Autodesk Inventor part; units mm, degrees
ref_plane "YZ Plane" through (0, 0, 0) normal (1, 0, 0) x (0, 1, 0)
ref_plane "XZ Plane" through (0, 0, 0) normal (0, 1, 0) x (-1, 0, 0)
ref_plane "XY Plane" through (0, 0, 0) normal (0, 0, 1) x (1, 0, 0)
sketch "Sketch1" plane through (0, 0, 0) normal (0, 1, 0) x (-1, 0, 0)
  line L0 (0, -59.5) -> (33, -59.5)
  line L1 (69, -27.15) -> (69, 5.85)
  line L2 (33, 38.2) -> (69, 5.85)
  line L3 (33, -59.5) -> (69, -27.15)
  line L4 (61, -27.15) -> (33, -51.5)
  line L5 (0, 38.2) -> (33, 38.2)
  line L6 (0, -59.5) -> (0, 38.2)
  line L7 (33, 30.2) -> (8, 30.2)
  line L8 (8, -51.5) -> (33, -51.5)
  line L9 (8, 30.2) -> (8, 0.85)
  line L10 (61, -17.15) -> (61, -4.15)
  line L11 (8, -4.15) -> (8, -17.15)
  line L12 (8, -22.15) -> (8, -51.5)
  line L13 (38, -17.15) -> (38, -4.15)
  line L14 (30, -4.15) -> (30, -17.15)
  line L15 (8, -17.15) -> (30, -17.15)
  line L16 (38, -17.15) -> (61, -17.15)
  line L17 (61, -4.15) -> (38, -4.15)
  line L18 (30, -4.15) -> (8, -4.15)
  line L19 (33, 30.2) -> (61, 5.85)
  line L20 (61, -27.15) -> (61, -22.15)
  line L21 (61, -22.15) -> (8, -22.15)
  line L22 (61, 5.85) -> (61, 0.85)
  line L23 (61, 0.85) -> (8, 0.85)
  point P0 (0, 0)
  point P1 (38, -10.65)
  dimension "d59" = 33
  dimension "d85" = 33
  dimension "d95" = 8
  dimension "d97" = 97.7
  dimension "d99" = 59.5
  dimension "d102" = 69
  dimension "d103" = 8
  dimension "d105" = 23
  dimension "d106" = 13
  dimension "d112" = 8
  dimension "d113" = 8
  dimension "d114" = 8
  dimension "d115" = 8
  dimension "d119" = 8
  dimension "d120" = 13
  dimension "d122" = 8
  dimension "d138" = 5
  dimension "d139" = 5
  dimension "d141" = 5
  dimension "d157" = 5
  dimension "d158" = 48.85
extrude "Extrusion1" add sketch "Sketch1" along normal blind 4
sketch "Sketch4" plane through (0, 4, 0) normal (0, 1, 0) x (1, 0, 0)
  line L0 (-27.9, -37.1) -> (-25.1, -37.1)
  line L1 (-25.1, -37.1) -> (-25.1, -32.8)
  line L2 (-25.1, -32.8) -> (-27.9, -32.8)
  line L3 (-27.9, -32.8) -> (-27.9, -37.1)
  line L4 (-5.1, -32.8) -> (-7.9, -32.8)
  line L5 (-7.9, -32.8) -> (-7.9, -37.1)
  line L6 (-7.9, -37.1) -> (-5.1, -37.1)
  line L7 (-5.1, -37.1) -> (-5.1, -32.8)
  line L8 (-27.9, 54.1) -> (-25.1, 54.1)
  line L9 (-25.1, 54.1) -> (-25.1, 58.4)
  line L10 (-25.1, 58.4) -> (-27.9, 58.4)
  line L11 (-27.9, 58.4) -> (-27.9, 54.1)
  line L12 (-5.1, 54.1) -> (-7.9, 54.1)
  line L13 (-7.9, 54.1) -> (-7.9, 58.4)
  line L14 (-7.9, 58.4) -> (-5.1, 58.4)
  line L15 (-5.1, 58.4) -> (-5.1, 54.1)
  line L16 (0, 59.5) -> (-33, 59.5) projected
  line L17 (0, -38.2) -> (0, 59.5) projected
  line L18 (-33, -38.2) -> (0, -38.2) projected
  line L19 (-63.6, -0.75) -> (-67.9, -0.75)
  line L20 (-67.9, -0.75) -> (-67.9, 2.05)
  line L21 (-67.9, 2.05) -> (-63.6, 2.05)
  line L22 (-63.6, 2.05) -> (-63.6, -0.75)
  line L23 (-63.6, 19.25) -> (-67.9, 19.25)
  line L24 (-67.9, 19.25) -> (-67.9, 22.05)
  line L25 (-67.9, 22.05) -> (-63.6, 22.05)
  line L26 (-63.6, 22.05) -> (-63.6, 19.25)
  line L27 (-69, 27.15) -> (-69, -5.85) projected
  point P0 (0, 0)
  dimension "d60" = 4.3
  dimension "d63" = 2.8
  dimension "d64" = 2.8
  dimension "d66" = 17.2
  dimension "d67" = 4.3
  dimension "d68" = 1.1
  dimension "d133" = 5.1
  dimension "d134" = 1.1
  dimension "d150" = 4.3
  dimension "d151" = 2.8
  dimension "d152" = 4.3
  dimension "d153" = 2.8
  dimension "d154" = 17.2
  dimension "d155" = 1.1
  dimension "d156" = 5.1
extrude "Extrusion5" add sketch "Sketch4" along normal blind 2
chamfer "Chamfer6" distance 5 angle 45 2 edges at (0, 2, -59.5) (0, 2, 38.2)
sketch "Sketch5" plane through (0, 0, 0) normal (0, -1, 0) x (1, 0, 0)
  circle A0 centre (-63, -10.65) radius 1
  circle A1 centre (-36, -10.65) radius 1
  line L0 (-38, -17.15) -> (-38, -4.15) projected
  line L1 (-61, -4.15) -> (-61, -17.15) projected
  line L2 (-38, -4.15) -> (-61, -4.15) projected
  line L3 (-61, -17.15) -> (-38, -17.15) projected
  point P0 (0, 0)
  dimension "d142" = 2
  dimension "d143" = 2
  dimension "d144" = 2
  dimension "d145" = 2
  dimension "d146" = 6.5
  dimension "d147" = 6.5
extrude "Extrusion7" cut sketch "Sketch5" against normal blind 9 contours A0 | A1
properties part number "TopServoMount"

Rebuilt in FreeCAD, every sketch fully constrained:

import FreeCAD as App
import Part
import Sketcher
from FreeCAD import Vector
Q = App.Units.Quantity


def edges_at(feature, points):
    """Names of the edges that pass closest to the given points."""
    edges = feature.Shape.Edges
    near = lambda p: min(range(len(edges)), key=lambda i: edges[i].distToShape(Part.Vertex(*p))[0])
    return sorted({f"Edge{near(p) + 1}" for p in points})

doc = App.newDocument("Part")
body = doc.addObject("PartDesign::Body", "Body")

sketch1 = body.newObject("Sketcher::SketchObject", "Sketch")
sketch1.AttachmentSupport = (doc.getObject("XZ_Plane"), [""])
sketch1.MapMode = "FlatFace"
sketch1.addGeometry(Part.LineSegment(Vector(0, 38, 0), Vector(0, -60, 0)), False)
sketch1.addGeometry(Part.LineSegment(Vector(0, -60, 0), Vector(-33, -60, 0)), False)
sketch1.addGeometry(Part.LineSegment(Vector(-33, -60, 0), Vector(-69, -27, 0)), False)
sketch1.addGeometry(Part.LineSegment(Vector(-69, -27, 0), Vector(-69, 6, 0)), False)
sketch1.addGeometry(Part.LineSegment(Vector(-69, 6, 0), Vector(-33, 38, 0)), False)
sketch1.addGeometry(Part.LineSegment(Vector(-33, 38, 0), Vector(0, 38, 0)), False)
sketch1.addGeometry(Part.LineSegment(Vector(-8, -17, 0), Vector(-8, -4, 0)), False)
sketch1.addGeometry(Part.LineSegment(Vector(-8, -4, 0), Vector(-30, -4, 0)), False)
sketch1.addGeometry(Part.LineSegment(Vector(-30, -4, 0), Vector(-30, -17, 0)), False)
sketch1.addGeometry(Part.LineSegment(Vector(-30, -17, 0), Vector(-8, -17, 0)), False)
sketch1.addGeometry(Part.LineSegment(Vector(-61, -22, 0), Vector(-61, -27, 0)), False)
sketch1.addGeometry(Part.LineSegment(Vector(-61, -27, 0), Vector(-33, -52, 0)), False)
sketch1.addGeometry(Part.LineSegment(Vector(-33, -52, 0), Vector(-8, -52, 0)), False)
sketch1.addGeometry(Part.LineSegment(Vector(-8, -52, 0), Vector(-8, -22, 0)), False)
sketch1.addGeometry(Part.LineSegment(Vector(-8, -22, 0), Vector(-61, -22, 0)), False)
sketch1.addGeometry(Part.LineSegment(Vector(-61, -4, 0), Vector(-61, -17, 0)), False)
sketch1.addGeometry(Part.LineSegment(Vector(-61, -17, 0), Vector(-38, -17, 0)), False)
sketch1.addGeometry(Part.LineSegment(Vector(-38, -17, 0), Vector(-38, -4, 0)), False)
sketch1.addGeometry(Part.LineSegment(Vector(-38, -4, 0), Vector(-61, -4, 0)), False)
sketch1.addGeometry(Part.LineSegment(Vector(-8, 30, 0), Vector(-33, 30, 0)), False)
sketch1.addGeometry(Part.LineSegment(Vector(-33, 30, 0), Vector(-61, 6, 0)), False)
sketch1.addGeometry(Part.LineSegment(Vector(-61, 6, 0), Vector(-61, 1, 0)), False)
sketch1.addGeometry(Part.LineSegment(Vector(-61, 1, 0), Vector(-8, 1, 0)), False)
sketch1.addGeometry(Part.LineSegment(Vector(-8, 1, 0), Vector(-8, 30, 0)), False)
sketch1.addConstraint(Sketcher.Constraint("Coincident", 0, 2, 1, 1))
sketch1.addConstraint(Sketcher.Constraint("Coincident", 1, 2, 2, 1))
sketch1.addConstraint(Sketcher.Constraint("Coincident", 2, 2, 3, 1))
sketch1.addConstraint(Sketcher.Constraint("Coincident", 3, 2, 4, 1))
sketch1.addConstraint(Sketcher.Constraint("Coincident", 4, 2, 5, 1))
sketch1.addConstraint(Sketcher.Constraint("Coincident", 5, 2, 0, 1))
sketch1.addConstraint(Sketcher.Constraint("Coincident", 6, 2, 7, 1))
sketch1.addConstraint(Sketcher.Constraint("Coincident", 7, 2, 8, 1))
sketch1.addConstraint(Sketcher.Constraint("Coincident", 8, 2, 9, 1))
sketch1.addConstraint(Sketcher.Constraint("Coincident", 9, 2, 6, 1))
sketch1.addConstraint(Sketcher.Constraint("Coincident", 10, 2, 11, 1))
sketch1.addConstraint(Sketcher.Constraint("Coincident", 11, 2, 12, 1))
sketch1.addConstraint(Sketcher.Constraint("Coincident", 12, 2, 13, 1))
sketch1.addConstraint(Sketcher.Constraint("Coincident", 13, 2, 14, 1))
sketch1.addConstraint(Sketcher.Constraint("Coincident", 14, 2, 10, 1))
sketch1.addConstraint(Sketcher.Constraint("Coincident", 15, 2, 16, 1))
sketch1.addConstraint(Sketcher.Constraint("Coincident", 16, 2, 17, 1))
sketch1.addConstraint(Sketcher.Constraint("Coincident", 17, 2, 18, 1))
sketch1.addConstraint(Sketcher.Constraint("Coincident", 18, 2, 15, 1))
sketch1.addConstraint(Sketcher.Constraint("Coincident", 19, 2, 20, 1))
sketch1.addConstraint(Sketcher.Constraint("Coincident", 20, 2, 21, 1))
sketch1.addConstraint(Sketcher.Constraint("Coincident", 21, 2, 22, 1))
sketch1.addConstraint(Sketcher.Constraint("Coincident", 22, 2, 23, 1))
sketch1.addConstraint(Sketcher.Constraint("Coincident", 23, 2, 19, 1))
sketch1.addConstraint(Sketcher.Constraint("Vertical", 0))
sketch1.addConstraint(Sketcher.Constraint("Horizontal", 1))
sketch1.addConstraint(Sketcher.Constraint("Vertical", 3))
sketch1.addConstraint(Sketcher.Constraint("Horizontal", 5))
sketch1.addConstraint(Sketcher.Constraint("Vertical", 6))
sketch1.addConstraint(Sketcher.Constraint("Horizontal", 7))
sketch1.addConstraint(Sketcher.Constraint("Vertical", 8))
sketch1.addConstraint(Sketcher.Constraint("Horizontal", 9))
sketch1.addConstraint(Sketcher.Constraint("Vertical", 10))
sketch1.addConstraint(Sketcher.Constraint("Horizontal", 12))
sketch1.addConstraint(Sketcher.Constraint("Vertical", 13))
sketch1.addConstraint(Sketcher.Constraint("Horizontal", 14))
sketch1.addConstraint(Sketcher.Constraint("Vertical", 15))
sketch1.addConstraint(Sketcher.Constraint("Horizontal", 16))
sketch1.addConstraint(Sketcher.Constraint("Vertical", 17))
sketch1.addConstraint(Sketcher.Constraint("Horizontal", 18))
sketch1.addConstraint(Sketcher.Constraint("Horizontal", 19))
sketch1.addConstraint(Sketcher.Constraint("Vertical", 21))
sketch1.addConstraint(Sketcher.Constraint("Horizontal", 22))
sketch1.addConstraint(Sketcher.Constraint("Vertical", 23))
sketch1.addConstraint(Sketcher.Constraint("PointOnObject", 0, 2, -2))
sketch1.addConstraint(Sketcher.Constraint("Horizontal", 2, 2, 10, 2))
sketch1.addConstraint(Sketcher.Constraint("Horizontal", 9, 2, 15, 2))
sketch1.addConstraint(Sketcher.Constraint("Horizontal", 7, 2, 17, 2))
sketch1.addConstraint(Sketcher.Constraint("Horizontal", 3, 2, 20, 2))
sketch1.addConstraint(Sketcher.Constraint("Vertical", 1, 2, 4, 2))
sketch1.addConstraint(Sketcher.Constraint("Vertical", 4, 2, 11, 2))
sketch1.addConstraint(Sketcher.Constraint("Vertical", 9, 2, 12, 2))
sketch1.addConstraint(Sketcher.Constraint("Vertical", 14, 2, 15, 2))
sketch1.addConstraint(Sketcher.Constraint("Vertical", 11, 2, 19, 2))
sketch1.addConstraint(Sketcher.Constraint("Vertical", 18, 2, 20, 2))
sketch1.addConstraint(Sketcher.Constraint("Vertical", 13, 2, 22, 2))
sketch1.addConstraint(Sketcher.Constraint("Equal", 5, 3))
sketch1.addConstraint(Sketcher.Constraint("Equal", 10, 21))
sketch1.addConstraint(Sketcher.Constraint("Equal", 13, 23))
sketch1.addConstraint(Sketcher.Constraint("Equal", 2, 4))
sketch1.addConstraint(Sketcher.Constraint("DistanceX", 1, 2, 1, 1, Q("33 mm")))
sketch1.addConstraint(Sketcher.Constraint("DistanceX", 16, 1, 16, 2, Q("23 mm")))
sketch1.addConstraint(Sketcher.Constraint("DistanceY", 6, 1, 6, 2, Q("13 mm")))
sketch1.addConstraint(Sketcher.Constraint("DistanceY", 10, 2, 10, 1, Q("5 mm")))
sketch1.addConstraint(Sketcher.Constraint("DistanceY", 0, 2, 0, 1, Q("97.7 mm")))
sketch1.addConstraint(Sketcher.Constraint("DistanceX", 2, 2, -1, 1, Q("69 mm")))
sketch1.addConstraint(Sketcher.Constraint("DistanceX", 6, 2, -1, 1, Q("8 mm")))
sketch1.addConstraint(Sketcher.Constraint("DistanceY", 2, 2, 7, 2, Q("23 mm")))
sketch1.addConstraint(Sketcher.Constraint("DistanceX", 2, 2, 10, 2, Q("8 mm")))
sketch1.addConstraint(Sketcher.Constraint("DistanceY", 1, 2, 11, 2, Q("8 mm")))
sketch1.addConstraint(Sketcher.Constraint("DistanceX", 16, 2, 8, 2, Q("8 mm")))
sketch1.addConstraint(Sketcher.Constraint("DistanceY", 0, 2, -1, 1, Q("59.5 mm")))
pad1 = body.newObject("PartDesign::Pad", "Pad")
pad1.Profile = sketch1
pad1.Length = 4
pad1.Reversed = True

sketch2 = body.newObject("Sketcher::SketchObject", "Sketch001")
sketch2.AttachmentSupport = (doc.getObject("XZ_Plane"), [""])
sketch2.MapMode = "FlatFace"
sketch2.AttachmentOffset = App.Placement(Vector(0, 0, -4), App.Rotation())
sketch2.addGeometry(Part.LineSegment(Vector(-27.9, 32.8, 0), Vector(-27.9, 37.1, 0)), False)
sketch2.addGeometry(Part.LineSegment(Vector(-27.9, 37.1, 0), Vector(-25.1, 37.1, 0)), False)
sketch2.addGeometry(Part.LineSegment(Vector(-25.1, 37.1, 0), Vector(-25.1, 32.8, 0)), False)
sketch2.addGeometry(Part.LineSegment(Vector(-25.1, 32.8, 0), Vector(-27.9, 32.8, 0)), False)
sketch2.addGeometry(Part.LineSegment(Vector(-5.1, 37.1, 0), Vector(-5.1, 32.8, 0)), False)
sketch2.addGeometry(Part.LineSegment(Vector(-5.1, 32.8, 0), Vector(-7.9, 32.8, 0)), False)
sketch2.addGeometry(Part.LineSegment(Vector(-7.9, 32.8, 0), Vector(-7.9, 37.1, 0)), False)
sketch2.addGeometry(Part.LineSegment(Vector(-7.9, 37.1, 0), Vector(-5.1, 37.1, 0)), False)
sketch2.addGeometry(Part.LineSegment(Vector(-27.9, -58.4, 0), Vector(-27.9, -54.1, 0)), False)
sketch2.addGeometry(Part.LineSegment(Vector(-27.9, -54.1, 0), Vector(-25.1, -54.1, 0)), False)
sketch2.addGeometry(Part.LineSegment(Vector(-25.1, -54.1, 0), Vector(-25.1, -58.4, 0)), False)
sketch2.addGeometry(Part.LineSegment(Vector(-25.1, -58.4, 0), Vector(-27.9, -58.4, 0)), False)
sketch2.addGeometry(Part.LineSegment(Vector(-7.9, -54.1, 0), Vector(-5.1, -54.1, 0)), False)
sketch2.addGeometry(Part.LineSegment(Vector(-5.1, -54.1, 0), Vector(-5.1, -58.4, 0)), False)
sketch2.addGeometry(Part.LineSegment(Vector(-5.1, -58.4, 0), Vector(-7.9, -58.4, 0)), False)
sketch2.addGeometry(Part.LineSegment(Vector(-7.9, -58.4, 0), Vector(-7.9, -54.1, 0)), False)
sketch2.addGeometry(Part.LineSegment(Vector(-67.9, 0.8, 0), Vector(-63.6, 0.8, 0)), False)
sketch2.addGeometry(Part.LineSegment(Vector(-63.6, 0.8, 0), Vector(-63.6, -2, 0)), False)
sketch2.addGeometry(Part.LineSegment(Vector(-63.6, -2, 0), Vector(-67.9, -2, 0)), False)
sketch2.addGeometry(Part.LineSegment(Vector(-67.9, -2, 0), Vector(-67.9, 0.8, 0)), False)
sketch2.addGeometry(Part.LineSegment(Vector(-67.9, -19.2, 0), Vector(-63.6, -19.2, 0)), False)
sketch2.addGeometry(Part.LineSegment(Vector(-63.6, -19.2, 0), Vector(-63.6, -22.1, 0)), False)
sketch2.addGeometry(Part.LineSegment(Vector(-63.6, -22.1, 0), Vector(-67.9, -22.1, 0)), False)
sketch2.addGeometry(Part.LineSegment(Vector(-67.9, -22.1, 0), Vector(-67.9, -19.2, 0)), False)
sketch2.addConstraint(Sketcher.Constraint("Coincident", 0, 2, 1, 1))
sketch2.addConstraint(Sketcher.Constraint("Coincident", 1, 2, 2, 1))
sketch2.addConstraint(Sketcher.Constraint("Coincident", 2, 2, 3, 1))
sketch2.addConstraint(Sketcher.Constraint("Coincident", 3, 2, 0, 1))
sketch2.addConstraint(Sketcher.Constraint("Coincident", 4, 2, 5, 1))
sketch2.addConstraint(Sketcher.Constraint("Coincident", 5, 2, 6, 1))
sketch2.addConstraint(Sketcher.Constraint("Coincident", 6, 2, 7, 1))
sketch2.addConstraint(Sketcher.Constraint("Coincident", 7, 2, 4, 1))
sketch2.addConstraint(Sketcher.Constraint("Coincident", 8, 2, 9, 1))
sketch2.addConstraint(Sketcher.Constraint("Coincident", 9, 2, 10, 1))
sketch2.addConstraint(Sketcher.Constraint("Coincident", 10, 2, 11, 1))
sketch2.addConstraint(Sketcher.Constraint("Coincident", 11, 2, 8, 1))
sketch2.addConstraint(Sketcher.Constraint("Coincident", 12, 2, 13, 1))
sketch2.addConstraint(Sketcher.Constraint("Coincident", 13, 2, 14, 1))
sketch2.addConstraint(Sketcher.Constraint("Coincident", 14, 2, 15, 1))
sketch2.addConstraint(Sketcher.Constraint("Coincident", 15, 2, 12, 1))
sketch2.addConstraint(Sketcher.Constraint("Coincident", 16, 2, 17, 1))
sketch2.addConstraint(Sketcher.Constraint("Coincident", 17, 2, 18, 1))
sketch2.addConstraint(Sketcher.Constraint("Coincident", 18, 2, 19, 1))
sketch2.addConstraint(Sketcher.Constraint("Coincident", 19, 2, 16, 1))
sketch2.addConstraint(Sketcher.Constraint("Coincident", 20, 2, 21, 1))
sketch2.addConstraint(Sketcher.Constraint("Coincident", 21, 2, 22, 1))
sketch2.addConstraint(Sketcher.Constraint("Coincident", 22, 2, 23, 1))
sketch2.addConstraint(Sketcher.Constraint("Coincident", 23, 2, 20, 1))
sketch2.addConstraint(Sketcher.Constraint("Vertical", 0))
sketch2.addConstraint(Sketcher.Constraint("Horizontal", 1))
sketch2.addConstraint(Sketcher.Constraint("Vertical", 2))
sketch2.addConstraint(Sketcher.Constraint("Horizontal", 3))
sketch2.addConstraint(Sketcher.Constraint("Vertical", 4))
sketch2.addConstraint(Sketcher.Constraint("Horizontal", 5))
sketch2.addConstraint(Sketcher.Constraint("Vertical", 6))
sketch2.addConstraint(Sketcher.Constraint("Horizontal", 7))
sketch2.addConstraint(Sketcher.Constraint("Vertical", 8))
sketch2.addConstraint(Sketcher.Constraint("Horizontal", 9))
sketch2.addConstraint(Sketcher.Constraint("Vertical", 10))
sketch2.addConstraint(Sketcher.Constraint("Horizontal", 11))
sketch2.addConstraint(Sketcher.Constraint("Horizontal", 12))
sketch2.addConstraint(Sketcher.Constraint("Vertical", 13))
sketch2.addConstraint(Sketcher.Constraint("Horizontal", 14))
sketch2.addConstraint(Sketcher.Constraint("Vertical", 15))
sketch2.addConstraint(Sketcher.Constraint("Horizontal", 16))
sketch2.addConstraint(Sketcher.Constraint("Vertical", 17))
sketch2.addConstraint(Sketcher.Constraint("Horizontal", 18))
sketch2.addConstraint(Sketcher.Constraint("Vertical", 19))
sketch2.addConstraint(Sketcher.Constraint("Horizontal", 20))
sketch2.addConstraint(Sketcher.Constraint("Vertical", 21))
sketch2.addConstraint(Sketcher.Constraint("Horizontal", 22))
sketch2.addConstraint(Sketcher.Constraint("Vertical", 23))
sketch2.addConstraint(Sketcher.Constraint("Horizontal", 3, 2, 4, 2))
sketch2.addConstraint(Sketcher.Constraint("Horizontal", 1, 2, 6, 2))
sketch2.addConstraint(Sketcher.Constraint("Horizontal", 9, 2, 12, 2))
sketch2.addConstraint(Sketcher.Constraint("Horizontal", 11, 2, 13, 2))
sketch2.addConstraint(Sketcher.Constraint("Vertical", 3, 2, 8, 2))
sketch2.addConstraint(Sketcher.Constraint("Vertical", 2, 2, 9, 2))
sketch2.addConstraint(Sketcher.Constraint("Vertical", 7, 2, 12, 2))
sketch2.addConstraint(Sketcher.Constraint("Vertical", 6, 2, 14, 2))
sketch2.addConstraint(Sketcher.Constraint("Vertical", 17, 2, 20, 2))
sketch2.addConstraint(Sketcher.Constraint("Vertical", 19, 2, 22, 2))
sketch2.addConstraint(Sketcher.Constraint("Equal", 3, 5))
sketch2.addConstraint(Sketcher.Constraint("Equal", 22, 0))
sketch2.addConstraint(Sketcher.Constraint("Equal", 6, 8))
sketch2.addConstraint(Sketcher.Constraint("Equal", 14, 17))
sketch2.addConstraint(Sketcher.Constraint("Equal", 19, 21))
sketch2.addConstraint(Sketcher.Constraint("DistanceX", 1, 1, 1, 2, Q("2.8 mm")))
sketch2.addConstraint(Sketcher.Constraint("DistanceX", 16, 1, 16, 2, Q("4.3 mm")))
sketch2.addConstraint(Sketcher.Constraint("DistanceX", 4, 2, -1, 1, Q("5.1 mm")))
sketch2.addConstraint(Sketcher.Constraint("DistanceX", 2, 2, 5, 2, Q("17.2 mm")))
sketch2.addConstraint(Sketcher.Constraint("DistanceY", 20, 2, 17, 2, Q("17.2 mm")))
sketch2.addConstraint(Sketcher.Constraint("DistanceX", 18, 2, 3, 2, Q("40 mm")))
sketch2.addConstraint(Sketcher.Constraint("DistanceY", -1, 1, 0, 2, Q("37.1 mm")))
sketch2.addConstraint(Sketcher.Constraint("DistanceY", 8, 2, -1, 1, Q("54.1 mm")))
sketch2.addConstraint(Sketcher.Constraint("DistanceY", -1, 1, 16, 2, Q("0.75 mm")))
pad2 = body.newObject("PartDesign::Pad", "Pad001")
pad2.Profile = sketch2
pad2.Length = 2
pad2.Reversed = True
doc.recompute()

chamfer = body.newObject("PartDesign::Chamfer", "Chamfer")
chamfer.Base = (pad2, edges_at(pad2, [(0, 2, -59.5), (0, 2, 38.2)]))
chamfer.Size = 5

sketch3 = body.newObject("Sketcher::SketchObject", "Sketch002")
sketch3.AttachmentSupport = (doc.getObject("XZ_Plane"), [""])
sketch3.MapMode = "FlatFace"
sketch3.addGeometry(Part.Circle(Vector(-63, -10.7, 0), Vector(0, 0, 1), 1), False)
sketch3.addGeometry(Part.Circle(Vector(-36, -10.7, 0), Vector(0, 0, 1), 1), False)
sketch3.addConstraint(Sketcher.Constraint("Equal", 0, 1))
sketch3.addConstraint(Sketcher.Constraint("Horizontal", 0, 3, 1, 3))
sketch3.addConstraint(Sketcher.Constraint("Diameter", 0, Q("2 mm")))
sketch3.addConstraint(Sketcher.Constraint("DistanceX", 0, 3, -1, 1, Q("63 mm")))
sketch3.addConstraint(Sketcher.Constraint("DistanceX", 1, 3, -1, 1, Q("36 mm")))
sketch3.addConstraint(Sketcher.Constraint("DistanceY", 0, 3, -1, 1, Q("10.65 mm")))
pocket1 = body.newObject("PartDesign::Pocket", "Pocket")
pocket1.Profile = sketch3
pocket1.Length = 9

doc.recompute()
